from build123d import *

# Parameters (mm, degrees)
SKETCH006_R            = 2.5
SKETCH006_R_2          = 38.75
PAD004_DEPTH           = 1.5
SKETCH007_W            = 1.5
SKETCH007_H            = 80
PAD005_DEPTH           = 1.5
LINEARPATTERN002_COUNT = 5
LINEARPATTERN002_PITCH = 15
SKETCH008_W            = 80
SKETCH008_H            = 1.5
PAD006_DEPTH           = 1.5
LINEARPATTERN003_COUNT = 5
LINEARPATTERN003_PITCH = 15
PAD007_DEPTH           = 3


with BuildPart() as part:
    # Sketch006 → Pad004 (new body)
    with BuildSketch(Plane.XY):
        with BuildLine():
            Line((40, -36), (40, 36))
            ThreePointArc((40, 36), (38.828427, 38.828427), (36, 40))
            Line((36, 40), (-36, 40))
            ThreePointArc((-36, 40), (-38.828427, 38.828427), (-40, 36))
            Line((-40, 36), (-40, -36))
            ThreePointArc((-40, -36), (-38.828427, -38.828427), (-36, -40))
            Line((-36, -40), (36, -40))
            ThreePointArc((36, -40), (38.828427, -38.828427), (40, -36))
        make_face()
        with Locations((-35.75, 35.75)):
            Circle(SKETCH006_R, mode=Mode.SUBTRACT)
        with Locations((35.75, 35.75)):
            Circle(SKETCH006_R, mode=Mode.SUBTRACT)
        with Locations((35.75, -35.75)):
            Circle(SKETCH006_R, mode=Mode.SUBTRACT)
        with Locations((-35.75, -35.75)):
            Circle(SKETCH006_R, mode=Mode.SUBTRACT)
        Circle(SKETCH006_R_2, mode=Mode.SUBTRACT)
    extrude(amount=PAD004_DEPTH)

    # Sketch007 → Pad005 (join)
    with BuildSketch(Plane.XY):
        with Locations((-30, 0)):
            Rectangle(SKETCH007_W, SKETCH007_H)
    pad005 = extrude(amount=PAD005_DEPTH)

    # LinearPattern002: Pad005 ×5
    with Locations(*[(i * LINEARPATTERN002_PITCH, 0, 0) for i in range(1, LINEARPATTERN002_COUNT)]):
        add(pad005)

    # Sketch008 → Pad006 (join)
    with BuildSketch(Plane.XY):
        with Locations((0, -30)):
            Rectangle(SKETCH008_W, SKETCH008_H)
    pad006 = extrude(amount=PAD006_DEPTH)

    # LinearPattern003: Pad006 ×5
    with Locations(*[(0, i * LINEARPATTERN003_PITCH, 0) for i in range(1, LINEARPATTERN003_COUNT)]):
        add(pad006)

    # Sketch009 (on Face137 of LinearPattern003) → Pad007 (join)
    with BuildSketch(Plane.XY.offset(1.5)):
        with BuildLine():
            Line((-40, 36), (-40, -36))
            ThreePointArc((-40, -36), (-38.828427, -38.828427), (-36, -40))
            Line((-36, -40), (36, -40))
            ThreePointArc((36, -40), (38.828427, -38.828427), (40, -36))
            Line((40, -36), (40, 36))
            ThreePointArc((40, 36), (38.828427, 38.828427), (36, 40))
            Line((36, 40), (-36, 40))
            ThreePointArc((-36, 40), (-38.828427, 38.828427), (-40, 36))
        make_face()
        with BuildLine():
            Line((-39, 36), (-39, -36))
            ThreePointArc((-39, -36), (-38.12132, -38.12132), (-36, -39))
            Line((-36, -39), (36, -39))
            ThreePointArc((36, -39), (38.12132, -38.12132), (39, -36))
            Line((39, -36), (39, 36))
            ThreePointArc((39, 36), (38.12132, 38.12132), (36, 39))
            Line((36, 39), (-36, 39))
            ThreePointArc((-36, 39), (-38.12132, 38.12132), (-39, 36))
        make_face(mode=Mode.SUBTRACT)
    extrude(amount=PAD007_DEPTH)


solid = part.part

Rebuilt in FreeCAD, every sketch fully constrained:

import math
import FreeCAD as App
import Part
import Sketcher
from FreeCAD import Vector
Q = App.Units.Quantity

doc = App.newDocument("Part")
body = doc.addObject("PartDesign::Body", "Body")

sketch1 = doc.addObject("Sketcher::SketchObject", "Sketch")
body.addObject(sketch1)
sketch1.AttachmentSupport = (doc.XY_Plane, [""])
sketch1.MapMode = "FlatFace"
sketch1.addGeometry(Part.LineSegment(Vector(40, -36, 0), Vector(40, 36, 0)), False)
sketch1.addGeometry(Part.ArcOfCircle(Part.Circle(Vector(36, 36, 0), Vector(0, 0, 1), 4), math.radians(0), math.radians(90)), False)
sketch1.addGeometry(Part.LineSegment(Vector(36, 40, 0), Vector(-36, 40, 0)), False)
sketch1.addGeometry(Part.ArcOfCircle(Part.Circle(Vector(-36, 36, 0), Vector(0, 0, 1), 4), math.radians(90), math.radians(180)), False)
sketch1.addGeometry(Part.LineSegment(Vector(-40, 36, 0), Vector(-40, -36, 0)), False)
sketch1.addGeometry(Part.ArcOfCircle(Part.Circle(Vector(-36, -36, 0), Vector(0, 0, 1), 4), math.radians(-180), math.radians(-90)), False)
sketch1.addGeometry(Part.LineSegment(Vector(-36, -40, 0), Vector(36, -40, 0)), False)
sketch1.addGeometry(Part.ArcOfCircle(Part.Circle(Vector(36, -36, 0), Vector(0, 0, 1), 4), math.radians(-90), math.radians(0)), False)
sketch1.addGeometry(Part.Circle(Vector(-35.8, -35.8, 0), Vector(0, 0, 1), 2.5), False)
sketch1.addGeometry(Part.Circle(Vector(35.8, -35.8, 0), Vector(0, 0, 1), 2.5), False)
sketch1.addGeometry(Part.Circle(Vector(-35.8, 35.8, 0), Vector(0, 0, 1), 2.5), False)
sketch1.addGeometry(Part.Circle(Vector(0, 0, 0), Vector(0, 0, 1), 38.8), False)
sketch1.addGeometry(Part.Circle(Vector(35.8, 35.8, 0), Vector(0, 0, 1), 2.5), False)
sketch1.addConstraint(Sketcher.Constraint("Tangent", 0, 2, 1, 1))
sketch1.addConstraint(Sketcher.Constraint("Tangent", 1, 2, 2, 1))
sketch1.addConstraint(Sketcher.Constraint("Tangent", 2, 2, 3, 1))
sketch1.addConstraint(Sketcher.Constraint("Tangent", 3, 2, 4, 1))
sketch1.addConstraint(Sketcher.Constraint("Tangent", 4, 2, 5, 1))
sketch1.addConstraint(Sketcher.Constraint("Tangent", 5, 2, 6, 1))
sketch1.addConstraint(Sketcher.Constraint("Tangent", 6, 2, 7, 1))
sketch1.addConstraint(Sketcher.Constraint("Tangent", 7, 2, 0, 1))
sketch1.addConstraint(Sketcher.Constraint("Vertical", 0))
sketch1.addConstraint(Sketcher.Constraint("Horizontal", 2))
sketch1.addConstraint(Sketcher.Constraint("Vertical", 4))
sketch1.addConstraint(Sketcher.Constraint("Horizontal", 6))
sketch1.addConstraint(Sketcher.Constraint("Coincident", 11, 3, -1, 1))
sketch1.addConstraint(Sketcher.Constraint("Equal", 1, 3))
sketch1.addConstraint(Sketcher.Constraint("Equal", 3, 5))
sketch1.addConstraint(Sketcher.Constraint("Equal", 5, 7))
sketch1.addConstraint(Sketcher.Constraint("Equal", 8, 9))
sketch1.addConstraint(Sketcher.Constraint("Equal", 9, 10))
sketch1.addConstraint(Sketcher.Constraint("Equal", 10, 12))
sketch1.addConstraint(Sketcher.Constraint("Symmetric", 1, 3, 5, 3, -1, 1))
sketch1.addConstraint(Sketcher.Constraint("Symmetric", 9, 3, 10, 3, -1, 1))
sketch1.addConstraint(Sketcher.Constraint("Symmetric", 8, 3, 12, 3, -1, 1))
sketch1.addConstraint(Sketcher.Constraint("Symmetric", 8, 3, 9, 3, -2))
sketch1.addConstraint(Sketcher.Constraint("Equal", 6, 0))
sketch1.addConstraint(Sketcher.Constraint("Diameter", 8, Q("5 mm")))
sketch1.addConstraint(Sketcher.Constraint("Radius", 1, Q("4 mm")))
sketch1.addConstraint(Sketcher.Constraint("Diameter", 11, Q("77.5 mm")))
sketch1.addConstraint(Sketcher.Constraint("DistanceX", 2, 2, 2, 1, Q("72 mm")))
sketch1.addConstraint(Sketcher.Constraint("DistanceX", 8, 3, 9, 3, Q("71.5 mm")))
sketch1.addConstraint(Sketcher.Constraint("DistanceY", 8, 3, 10, 3, Q("71.5 mm")))
pad1 = doc.addObject("PartDesign::Pad", "Pad")
body.addObject(pad1)
pad1.Profile = sketch1
pad1.Length = 1.5

sketch2 = doc.addObject("Sketcher::SketchObject", "Sketch001")
body.addObject(sketch2)
sketch2.AttachmentSupport = (doc.XY_Plane, [""])
sketch2.MapMode = "FlatFace"
sketch2.addGeometry(Part.LineSegment(Vector(-30.8, 40, 0), Vector(-30.8, -40, 0)), False)
sketch2.addGeometry(Part.LineSegment(Vector(-30.8, -40, 0), Vector(-29.2, -40, 0)), False)
sketch2.addGeometry(Part.LineSegment(Vector(-29.2, -40, 0), Vector(-29.2, 40, 0)), False)
sketch2.addGeometry(Part.LineSegment(Vector(-29.2, 40, 0), Vector(-30.8, 40, 0)), False)
sketch2.addConstraint(Sketcher.Constraint("Coincident", 0, 2, 1, 1))
sketch2.addConstraint(Sketcher.Constraint("Coincident", 1, 2, 2, 1))
sketch2.addConstraint(Sketcher.Constraint("Coincident", 2, 2, 3, 1))
sketch2.addConstraint(Sketcher.Constraint("Coincident", 3, 2, 0, 1))
sketch2.addConstraint(Sketcher.Constraint("Vertical", 0))
sketch2.addConstraint(Sketcher.Constraint("Horizontal", 1))
sketch2.addConstraint(Sketcher.Constraint("Vertical", 2))
sketch2.addConstraint(Sketcher.Constraint("Horizontal", 3))
sketch2.addConstraint(Sketcher.Constraint("DistanceY", 0, 2, 0, 1, Q("80 mm")))
sketch2.addConstraint(Sketcher.Constraint("DistanceX", 1, 1, 1, 2, Q("1.5 mm")))
sketch2.addConstraint(Sketcher.Constraint("DistanceY", 0, 2, -1, 1, Q("40 mm")))
sketch2.addConstraint(Sketcher.Constraint("DistanceX", 0, 2, -1, 1, Q("30.75 mm")))
pad2 = doc.addObject("PartDesign::Pad", "Pad001")
body.addObject(pad2)
pad2.Profile = sketch2
pad2.Length = 1.5
doc.recompute()

linearpattern = doc.addObject("PartDesign::LinearPattern", "LinearPattern")
body.addObject(linearpattern)
linearpattern.Originals = [pad2]
linearpattern.Direction = (doc.X_Axis, [""])
linearpattern.Mode = "offset"
linearpattern.Offset = 15
linearpattern.Occurrences = 5
body.Tip = linearpattern

sketch3 = doc.addObject("Sketcher::SketchObject", "Sketch002")
body.addObject(sketch3)
sketch3.AttachmentSupport = (doc.XY_Plane, [""])
sketch3.MapMode = "FlatFace"
sketch3.addGeometry(Part.LineSegment(Vector(-40, -29.2, 0), Vector(-40, -30.8, 0)), False)
sketch3.addGeometry(Part.LineSegment(Vector(-40, -30.8, 0), Vector(40, -30.8, 0)), False)
sketch3.addGeometry(Part.LineSegment(Vector(40, -30.8, 0), Vector(40, -29.2, 0)), False)
sketch3.addGeometry(Part.LineSegment(Vector(40, -29.2, 0), Vector(-40, -29.2, 0)), False)
sketch3.addConstraint(Sketcher.Constraint("Coincident", 0, 2, 1, 1))
sketch3.addConstraint(Sketcher.Constraint("Coincident", 1, 2, 2, 1))
sketch3.addConstraint(Sketcher.Constraint("Coincident", 2, 2, 3, 1))
sketch3.addConstraint(Sketcher.Constraint("Coincident", 3, 2, 0, 1))
sketch3.addConstraint(Sketcher.Constraint("Vertical", 0))
sketch3.addConstraint(Sketcher.Constraint("Horizontal", 1))
sketch3.addConstraint(Sketcher.Constraint("Vertical", 2))
sketch3.addConstraint(Sketcher.Constraint("Horizontal", 3))
sketch3.addConstraint(Sketcher.Constraint("DistanceX", 1, 1, 1, 2, Q("80 mm")))
sketch3.addConstraint(Sketcher.Constraint("DistanceY", 0, 2, 0, 1, Q("1.5 mm")))
sketch3.addConstraint(Sketcher.Constraint("DistanceX", 0, 2, -1, 1, Q("40 mm")))
sketch3.addConstraint(Sketcher.Constraint("DistanceY", 0, 2, -1, 1, Q("30.75 mm")))
pad3 = doc.addObject("PartDesign::Pad", "Pad002")
body.addObject(pad3)
pad3.Profile = sketch3
pad3.Length = 1.5
doc.recompute()

linearpattern2 = doc.addObject("PartDesign::LinearPattern", "LinearPattern001")
body.addObject(linearpattern2)
linearpattern2.Originals = [pad3]
linearpattern2.Direction = (doc.Y_Axis, [""])
linearpattern2.Mode = "offset"
linearpattern2.Offset = 15
linearpattern2.Occurrences = 5
body.Tip = linearpattern2

sketch4 = doc.addObject("Sketcher::SketchObject", "Sketch003")
body.addObject(sketch4)
sketch4.AttachmentSupport = (doc.XY_Plane, [""])
sketch4.MapMode = "FlatFace"
sketch4.AttachmentOffset = App.Placement(Vector(0, 0, 1.5), App.Rotation())
sketch4.addGeometry(Part.LineSegment(Vector(-40, 36, 0), Vector(-40, -36, 0)), False)
sketch4.addGeometry(Part.ArcOfCircle(Part.Circle(Vector(-36, -36, 0), Vector(0, 0, 1), 4), math.radians(-180), math.radians(-90)), False)
sketch4.addGeometry(Part.LineSegment(Vector(-36, -40, 0), Vector(36, -40, 0)), False)
sketch4.addGeometry(Part.ArcOfCircle(Part.Circle(Vector(36, -36, 0), Vector(0, 0, 1), 4), math.radians(-90), math.radians(0)), False)
sketch4.addGeometry(Part.LineSegment(Vector(40, -36, 0), Vector(40, 36, 0)), False)
sketch4.addGeometry(Part.ArcOfCircle(Part.Circle(Vector(36, 36, 0), Vector(0, 0, 1), 4), math.radians(0), math.radians(90)), False)
sketch4.addGeometry(Part.LineSegment(Vector(36, 40, 0), Vector(-36, 40, 0)), False)
sketch4.addGeometry(Part.ArcOfCircle(Part.Circle(Vector(-36, 36, 0), Vector(0, 0, 1), 4), math.radians(90), math.radians(180)), False)
sketch4.addGeometry(Part.LineSegment(Vector(-39, -36, 0), Vector(-39, 36, 0)), False)
sketch4.addGeometry(Part.ArcOfCircle(Part.Circle(Vector(-36, 36, 0), Vector(0, 0, 1), 3), math.radians(90), math.radians(180)), False)
sketch4.addGeometry(Part.LineSegment(Vector(-36, 39, 0), Vector(36, 39, 0)), False)
sketch4.addGeometry(Part.ArcOfCircle(Part.Circle(Vector(36, 36, 0), Vector(0, 0, 1), 3), math.radians(0), math.radians(90)), False)
sketch4.addGeometry(Part.LineSegment(Vector(39, 36, 0), Vector(39, -36, 0)), False)
sketch4.addGeometry(Part.ArcOfCircle(Part.Circle(Vector(36, -36, 0), Vector(0, 0, 1), 3), math.radians(-90), math.radians(0)), False)
sketch4.addGeometry(Part.LineSegment(Vector(36, -39, 0), Vector(-36, -39, 0)), False)
sketch4.addGeometry(Part.ArcOfCircle(Part.Circle(Vector(-36, -36, 0), Vector(0, 0, 1), 3), math.radians(-180), math.radians(-90)), False)
sketch4.addConstraint(Sketcher.Constraint("Tangent", 0, 2, 1, 1))
sketch4.addConstraint(Sketcher.Constraint("Tangent", 1, 2, 2, 1))
sketch4.addConstraint(Sketcher.Constraint("Tangent", 2, 2, 3, 1))
sketch4.addConstraint(Sketcher.Constraint("Tangent", 3, 2, 4, 1))
sketch4.addConstraint(Sketcher.Constraint("Tangent", 4, 2, 5, 1))
sketch4.addConstraint(Sketcher.Constraint("Tangent", 5, 2, 6, 1))
sketch4.addConstraint(Sketcher.Constraint("Tangent", 6, 2, 7, 1))
sketch4.addConstraint(Sketcher.Constraint("Tangent", 7, 2, 0, 1))
sketch4.addConstraint(Sketcher.Constraint("Tangent", 8, 2, 9, 2))
sketch4.addConstraint(Sketcher.Constraint("Tangent", 9, 1, 10, 1))
sketch4.addConstraint(Sketcher.Constraint("Tangent", 10, 2, 11, 2))
sketch4.addConstraint(Sketcher.Constraint("Tangent", 11, 1, 12, 1))
sketch4.addConstraint(Sketcher.Constraint("Tangent", 12, 2, 13, 2))
sketch4.addConstraint(Sketcher.Constraint("Tangent", 13, 1, 14, 1))
sketch4.addConstraint(Sketcher.Constraint("Tangent", 14, 2, 15, 2))
sketch4.addConstraint(Sketcher.Constraint("Tangent", 15, 1, 8, 1))
sketch4.addConstraint(Sketcher.Constraint("Vertical", 0))
sketch4.addConstraint(Sketcher.Constraint("Horizontal", 2))
sketch4.addConstraint(Sketcher.Constraint("Vertical", 4))
sketch4.addConstraint(Sketcher.Constraint("Horizontal", 6))
sketch4.addConstraint(Sketcher.Constraint("Vertical", 8))
sketch4.addConstraint(Sketcher.Constraint("Horizontal", 10))
sketch4.addConstraint(Sketcher.Constraint("Vertical", 12))
sketch4.addConstraint(Sketcher.Constraint("Horizontal", 14))
sketch4.addConstraint(Sketcher.Constraint("Coincident", 9, 3, 7, 3))
sketch4.addConstraint(Sketcher.Constraint("Coincident", 11, 3, 5, 3))
sketch4.addConstraint(Sketcher.Constraint("Coincident", 13, 3, 3, 3))
sketch4.addConstraint(Sketcher.Constraint("Equal", 1, 3))
sketch4.addConstraint(Sketcher.Constraint("Equal", 3, 5))
sketch4.addConstraint(Sketcher.Constraint("Equal", 5, 7))
sketch4.addConstraint(Sketcher.Constraint("Equal", 13, 15))
sketch4.addConstraint(Sketcher.Constraint("Symmetric", 1, 3, 5, 3, -1, 1))
sketch4.addConstraint(Sketcher.Constraint("Equal", 14, 0))
sketch4.addConstraint(Sketcher.Constraint("Radius", 1, Q("4 mm")))
sketch4.addConstraint(Sketcher.Constraint("Radius", 9, Q("3.000001 mm")))
sketch4.addConstraint(Sketcher.Constraint("DistanceX", 2, 1, 2, 2, Q("72 mm")))
pad4 = doc.addObject("PartDesign::Pad", "Pad003")
body.addObject(pad4)
pad4.Profile = sketch4
pad4.Length = 3

doc.recompute()
